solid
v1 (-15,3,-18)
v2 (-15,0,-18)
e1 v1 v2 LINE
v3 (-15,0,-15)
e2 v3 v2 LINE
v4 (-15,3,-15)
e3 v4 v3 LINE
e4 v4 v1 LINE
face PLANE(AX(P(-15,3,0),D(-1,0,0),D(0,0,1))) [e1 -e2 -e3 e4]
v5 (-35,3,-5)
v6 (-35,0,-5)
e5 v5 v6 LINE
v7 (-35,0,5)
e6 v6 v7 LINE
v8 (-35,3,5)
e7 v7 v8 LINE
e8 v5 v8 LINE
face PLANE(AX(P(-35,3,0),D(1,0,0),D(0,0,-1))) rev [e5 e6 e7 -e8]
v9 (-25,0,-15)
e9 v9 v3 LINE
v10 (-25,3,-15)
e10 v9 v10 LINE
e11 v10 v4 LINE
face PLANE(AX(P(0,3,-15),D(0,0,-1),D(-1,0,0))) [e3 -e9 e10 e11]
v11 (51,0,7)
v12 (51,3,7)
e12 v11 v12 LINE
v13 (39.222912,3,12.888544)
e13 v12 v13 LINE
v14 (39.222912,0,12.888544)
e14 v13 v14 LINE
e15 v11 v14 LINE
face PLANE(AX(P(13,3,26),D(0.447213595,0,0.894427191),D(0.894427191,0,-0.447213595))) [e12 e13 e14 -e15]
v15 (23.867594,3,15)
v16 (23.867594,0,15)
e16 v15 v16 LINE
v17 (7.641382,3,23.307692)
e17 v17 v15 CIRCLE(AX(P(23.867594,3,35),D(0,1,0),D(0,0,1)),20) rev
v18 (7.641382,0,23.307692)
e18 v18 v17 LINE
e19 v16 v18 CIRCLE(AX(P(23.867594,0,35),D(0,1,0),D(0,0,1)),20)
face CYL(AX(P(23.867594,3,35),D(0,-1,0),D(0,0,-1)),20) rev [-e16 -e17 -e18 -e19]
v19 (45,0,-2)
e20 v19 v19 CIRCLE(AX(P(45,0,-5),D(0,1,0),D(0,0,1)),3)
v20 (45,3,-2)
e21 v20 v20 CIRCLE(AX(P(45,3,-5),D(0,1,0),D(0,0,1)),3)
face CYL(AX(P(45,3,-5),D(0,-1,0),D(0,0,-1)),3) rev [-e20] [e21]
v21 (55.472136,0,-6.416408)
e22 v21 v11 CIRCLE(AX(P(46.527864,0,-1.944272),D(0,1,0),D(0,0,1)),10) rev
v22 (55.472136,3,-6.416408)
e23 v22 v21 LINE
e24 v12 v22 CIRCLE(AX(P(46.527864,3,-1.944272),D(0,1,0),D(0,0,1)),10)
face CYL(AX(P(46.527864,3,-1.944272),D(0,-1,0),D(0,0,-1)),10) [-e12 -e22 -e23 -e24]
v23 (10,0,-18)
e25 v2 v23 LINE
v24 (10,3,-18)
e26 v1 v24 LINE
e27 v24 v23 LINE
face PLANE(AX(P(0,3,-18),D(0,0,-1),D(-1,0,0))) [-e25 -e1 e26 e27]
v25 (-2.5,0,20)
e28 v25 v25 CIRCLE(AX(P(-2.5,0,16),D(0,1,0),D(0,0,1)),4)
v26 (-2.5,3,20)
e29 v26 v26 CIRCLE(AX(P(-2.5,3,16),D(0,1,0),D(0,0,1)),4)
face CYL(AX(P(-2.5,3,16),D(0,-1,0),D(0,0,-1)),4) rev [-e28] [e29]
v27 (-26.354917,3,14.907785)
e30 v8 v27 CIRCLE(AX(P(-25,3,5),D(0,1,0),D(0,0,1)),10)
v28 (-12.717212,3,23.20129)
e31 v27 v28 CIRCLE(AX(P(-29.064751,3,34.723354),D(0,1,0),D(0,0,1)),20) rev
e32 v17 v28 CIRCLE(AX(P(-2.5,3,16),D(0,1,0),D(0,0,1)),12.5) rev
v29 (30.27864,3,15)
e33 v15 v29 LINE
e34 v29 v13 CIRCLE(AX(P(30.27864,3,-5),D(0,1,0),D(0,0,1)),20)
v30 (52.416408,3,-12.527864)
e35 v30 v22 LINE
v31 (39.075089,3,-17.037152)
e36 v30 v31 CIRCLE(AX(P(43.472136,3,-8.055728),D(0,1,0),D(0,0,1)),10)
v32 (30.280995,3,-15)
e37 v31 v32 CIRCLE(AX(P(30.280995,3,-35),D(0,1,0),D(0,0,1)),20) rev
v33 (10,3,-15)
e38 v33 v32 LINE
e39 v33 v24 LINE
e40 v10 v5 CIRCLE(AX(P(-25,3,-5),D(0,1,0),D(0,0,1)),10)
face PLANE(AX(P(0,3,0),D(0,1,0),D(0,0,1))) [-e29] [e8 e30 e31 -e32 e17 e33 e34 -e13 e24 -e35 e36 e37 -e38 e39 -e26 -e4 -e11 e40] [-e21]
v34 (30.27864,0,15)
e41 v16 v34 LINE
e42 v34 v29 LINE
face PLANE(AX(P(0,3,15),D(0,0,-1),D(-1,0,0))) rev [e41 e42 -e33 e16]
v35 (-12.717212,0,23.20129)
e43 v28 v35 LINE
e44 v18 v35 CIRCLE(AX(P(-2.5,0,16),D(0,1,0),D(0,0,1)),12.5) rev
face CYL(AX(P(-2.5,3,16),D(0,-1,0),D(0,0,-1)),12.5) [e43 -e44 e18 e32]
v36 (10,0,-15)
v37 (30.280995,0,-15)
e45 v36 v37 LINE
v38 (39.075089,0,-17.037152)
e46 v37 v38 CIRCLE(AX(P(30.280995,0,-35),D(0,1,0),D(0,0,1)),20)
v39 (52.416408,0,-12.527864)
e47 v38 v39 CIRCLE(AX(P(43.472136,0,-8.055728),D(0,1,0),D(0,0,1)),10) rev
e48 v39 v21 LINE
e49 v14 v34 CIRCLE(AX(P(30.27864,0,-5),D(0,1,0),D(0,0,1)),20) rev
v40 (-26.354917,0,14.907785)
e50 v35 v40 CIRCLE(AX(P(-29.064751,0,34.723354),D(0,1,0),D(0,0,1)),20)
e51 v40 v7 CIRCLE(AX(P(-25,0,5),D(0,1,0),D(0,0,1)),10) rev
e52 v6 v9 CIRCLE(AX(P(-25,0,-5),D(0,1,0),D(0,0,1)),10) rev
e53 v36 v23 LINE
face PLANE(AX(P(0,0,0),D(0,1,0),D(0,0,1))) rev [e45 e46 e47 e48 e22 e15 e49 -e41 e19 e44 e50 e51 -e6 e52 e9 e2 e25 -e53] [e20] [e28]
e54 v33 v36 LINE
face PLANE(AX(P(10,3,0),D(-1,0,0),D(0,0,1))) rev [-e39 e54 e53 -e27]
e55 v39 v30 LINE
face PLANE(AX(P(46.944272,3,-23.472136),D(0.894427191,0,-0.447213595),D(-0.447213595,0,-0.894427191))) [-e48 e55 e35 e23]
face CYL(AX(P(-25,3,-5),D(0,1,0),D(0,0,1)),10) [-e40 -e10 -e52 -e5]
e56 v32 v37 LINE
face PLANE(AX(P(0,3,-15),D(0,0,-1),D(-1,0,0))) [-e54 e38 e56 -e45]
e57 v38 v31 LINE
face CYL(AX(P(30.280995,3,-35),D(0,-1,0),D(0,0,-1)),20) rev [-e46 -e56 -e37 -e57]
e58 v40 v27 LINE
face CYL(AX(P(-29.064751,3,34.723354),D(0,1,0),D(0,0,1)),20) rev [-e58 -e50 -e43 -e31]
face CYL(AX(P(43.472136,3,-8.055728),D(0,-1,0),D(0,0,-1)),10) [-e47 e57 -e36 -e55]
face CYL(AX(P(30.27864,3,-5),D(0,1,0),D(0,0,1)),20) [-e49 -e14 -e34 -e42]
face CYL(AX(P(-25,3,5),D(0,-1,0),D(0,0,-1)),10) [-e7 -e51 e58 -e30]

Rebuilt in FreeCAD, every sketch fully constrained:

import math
import FreeCAD as App
import Part
import Sketcher
from FreeCAD import Vector
Q = App.Units.Quantity


def edges_at(feature, points):
    """Names of the edges that pass closest to the given points."""
    edges = feature.Shape.Edges
    near = lambda p: min(range(len(edges)), key=lambda i: edges[i].distToShape(Part.Vertex(*p))[0])
    return sorted({f"Edge{near(p) + 1}" for p in points})

doc = App.newDocument("Part")
body = doc.addObject("PartDesign::Body", "Body")

sketch1 = body.newObject("Sketcher::SketchObject", "Sketch")
sketch1.AttachmentSupport = (doc.getObject("XZ_Plane"), [""])
sketch1.MapMode = "FlatFace"
sketch1.addGeometry([
    Part.LineSegment(Vector(10, 16, 0), Vector(10, 15, 0)),
    Part.LineSegment(Vector(10, 15, 0), Vector(35, 15, 0)),
    Part.LineSegment(Vector(35, 15, 0), Vector(59.944272, 2.527864, 0)),
    Part.LineSegment(Vector(59.944272, 2.527864, 0), Vector(47.944272, -21.472136, 0)),
    Part.LineSegment(Vector(47.944272, -21.472136, 0), Vector(35, -15, 0)),
    Part.LineSegment(Vector(35, -15, 0), Vector(10, -15, 0)),
    Part.LineSegment(Vector(10, -15, 0), Vector(10, -18, 0)),
    Part.LineSegment(Vector(10, -18, 0), Vector(-15, -18, 0)),
    Part.LineSegment(Vector(-15, -18, 0), Vector(-15, -15, 0)),
    Part.LineSegment(Vector(-15, -15, 0), Vector(-35, -15, 0)),
    Part.LineSegment(Vector(-35, -15, 0), Vector(-35, 15, 0)),
    Part.LineSegment(Vector(-35, 15, 0), Vector(-15, 15, 0)),
    Part.LineSegment(Vector(-15, 15, 0), Vector(-15, 16, 0)),
    Part.ArcOfCircle(Part.Circle(Vector(-2.5, 16, 0), Vector(0, 0, 1), 12.5), math.radians(0), math.radians(180)),
    Part.ArcOfCircle(Part.Circle(Vector(-2.5, 16, 0), Vector(0, 0, 1), 4), math.radians(-14.477512), math.radians(0)),
    Part.ArcOfCircle(Part.Circle(Vector(-2.5, 16, 0), Vector(0, 0, 1), 4), math.radians(0), math.radians(194.477512)),
    Part.ArcOfCircle(Part.Circle(Vector(-2.5, 16, 0), Vector(0, 0, 1), 4), math.radians(-165.522488), math.radians(-14.477512)),
    Part.Circle(Vector(45, -5, 0), Vector(0, 0, 1), 3),
], False)
sketch1.addConstraint([
    Sketcher.Constraint("Coincident", 0, 2, 1, 1),
    Sketcher.Constraint("Coincident", 1, 2, 2, 1),
    Sketcher.Constraint("Coincident", 2, 2, 3, 1),
    Sketcher.Constraint("Coincident", 3, 2, 4, 1),
    Sketcher.Constraint("Coincident", 4, 2, 5, 1),
    Sketcher.Constraint("Coincident", 5, 2, 6, 1),
    Sketcher.Constraint("Coincident", 6, 2, 7, 1),
    Sketcher.Constraint("Coincident", 7, 2, 8, 1),
    Sketcher.Constraint("Coincident", 8, 2, 9, 1),
    Sketcher.Constraint("Coincident", 9, 2, 10, 1),
    Sketcher.Constraint("Coincident", 10, 2, 11, 1),
    Sketcher.Constraint("Coincident", 11, 2, 12, 1),
    Sketcher.Constraint("Tangent", 12, 2, 13, 2),
    Sketcher.Constraint("Tangent", 13, 1, 0, 1),
    Sketcher.Constraint("Tangent", 14, 2, 15, 1),
    Sketcher.Constraint("Tangent", 15, 2, 16, 1),
    Sketcher.Constraint("Tangent", 16, 2, 14, 1),
    Sketcher.Constraint("Vertical", 0),
    Sketcher.Constraint("Horizontal", 1),
    Sketcher.Constraint("Horizontal", 5),
    Sketcher.Constraint("Vertical", 6),
    Sketcher.Constraint("Horizontal", 7),
    Sketcher.Constraint("Vertical", 8),
    Sketcher.Constraint("Horizontal", 9),
    Sketcher.Constraint("Vertical", 10),
    Sketcher.Constraint("Horizontal", 11),
    Sketcher.Constraint("Vertical", 12),
    Sketcher.Constraint("Coincident", 14, 3, 13, 3),
    Sketcher.Constraint("Symmetric", 1, 2, 9, 2, -1, 1),
    Sketcher.Constraint("Symmetric", 4, 2, 10, 2, -1, 1),
    Sketcher.Constraint("Symmetric", 0, 2, 5, 2, -1),
    Sketcher.Constraint("Perpendicular", 2, 3),
    Sketcher.Constraint("Perpendicular", 3, 4),
    Sketcher.Constraint("Horizontal", 13, 1, 14, 2),
    Sketcher.Constraint("Horizontal", 11, 2, 15, 2),
    Sketcher.Constraint("Horizontal", 15, 2, 16, 2),
    Sketcher.Constraint("Vertical", 8, 2, 11, 2),
    Sketcher.Constraint("Equal", 5, 7),
    Sketcher.Constraint("Diameter", 17, Q("6 mm")),
    Sketcher.Constraint("Radius", 14, Q("4 mm")),
    Sketcher.Constraint("Radius", 13, Q("12.5 mm")),
    Sketcher.Constraint("DistanceX", 9, 2, 9, 1, Q("20 mm")),
    Sketcher.Constraint("DistanceY", 0, 2, 0, 1, Q("1 mm")),
    Sketcher.Constraint("DistanceY", 6, 2, 6, 1, Q("3 mm")),
    Sketcher.Constraint("DistanceY", 10, 1, 10, 2, Q("30 mm")),
    Sketcher.Constraint("DistanceX", -1, 1, 17, 3, Q("45 mm")),
    Sketcher.Constraint("DistanceY", 17, 3, -1, 1, Q("5 mm")),
    Sketcher.Constraint("DistanceX", 3, 2, 2, 2, Q("12 mm")),
    Sketcher.Constraint("DistanceX", -1, 1, 2, 2, Q("59.944272 mm")),
])
pad1 = body.newObject("PartDesign::Pad", "Pad")
pad1.Profile = sketch1
pad1.Length = 3
pad1.Reversed = True
doc.recompute()

fillet = body.newObject("PartDesign::Fillet", "Fillet")
fillet.Base = (pad1, edges_at(pad1, [
    (47.944, 1.5, -21.472),
    (59.944, 1.5, 2.528),
    (-35, 1.5, 15),
    (-35, 1.5, -15),
]))
fillet.Radius = 10
doc.recompute()

fillet2 = body.newObject("PartDesign::Fillet", "Fillet001")
fillet2.Base = (fillet, edges_at(fillet, [
    (35, 1.5, -15),
    (35, 1.5, 15),
    (10, 1.5, 15),
    (-15, 1.5, 15),
]))
fillet2.Radius = 20

doc.recompute()
